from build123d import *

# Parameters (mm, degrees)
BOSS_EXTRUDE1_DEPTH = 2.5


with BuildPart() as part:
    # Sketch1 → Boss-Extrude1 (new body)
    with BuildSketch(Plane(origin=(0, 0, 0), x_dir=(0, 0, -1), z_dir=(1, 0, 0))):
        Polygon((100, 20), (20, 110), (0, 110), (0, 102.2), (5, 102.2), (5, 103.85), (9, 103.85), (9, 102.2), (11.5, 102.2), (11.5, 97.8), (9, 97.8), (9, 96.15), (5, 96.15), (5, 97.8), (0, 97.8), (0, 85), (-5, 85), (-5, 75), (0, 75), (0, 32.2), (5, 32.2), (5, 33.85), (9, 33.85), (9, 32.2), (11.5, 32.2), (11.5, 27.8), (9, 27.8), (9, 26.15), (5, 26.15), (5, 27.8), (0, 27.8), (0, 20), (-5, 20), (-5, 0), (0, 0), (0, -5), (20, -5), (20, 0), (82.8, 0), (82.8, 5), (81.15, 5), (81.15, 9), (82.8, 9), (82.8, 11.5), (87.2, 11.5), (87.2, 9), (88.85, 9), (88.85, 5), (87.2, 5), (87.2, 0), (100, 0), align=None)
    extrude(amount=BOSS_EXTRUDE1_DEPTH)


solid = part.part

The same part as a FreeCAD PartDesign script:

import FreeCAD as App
import Part
import Sketcher

doc = App.newDocument("Part")
params = doc.addObject("Spreadsheet::Sheet", "Params")
for row, (alias, value) in enumerate([
    ("sketch1_width", "10 mm"),
    ("sketch1_width2", "20 mm"),
    ("sketch1_width3", "5 mm"),
    ("sketch1_width4", "4 mm"),
    ("sketch1_width5", "7.8 mm"),
    ("pad1_length", "2.5 mm"),
], start=1):
    params.set(f"A{row}", alias)
    params.set(f"B{row}", "=" + value)
    params.setAlias(f"B{row}", alias)

body = doc.addObject("PartDesign::Body", "Body")

sketch1 = body.newObject("Sketcher::SketchObject", "Sketch")
sketch1.AttachmentSupport = (doc.getObject("YZ_Plane"), [""])
sketch1.MapMode = "FlatFace"
sketch1.addGeometry(Part.LineSegment(App.Vector(20, -100, 0), App.Vector(110, -20, 0)), False)
sketch1.addGeometry(Part.LineSegment(App.Vector(110, -20, 0), App.Vector(110, 0, 0)), False)
sketch1.addGeometry(Part.LineSegment(App.Vector(110, 0, 0), App.Vector(102.2, 0, 0)), False)
sketch1.addGeometry(Part.LineSegment(App.Vector(102.2, 0, 0), App.Vector(102.2, -5, 0)), False)
sketch1.addGeometry(Part.LineSegment(App.Vector(102.2, -5, 0), App.Vector(103.8, -5, 0)), False)
sketch1.addGeometry(Part.LineSegment(App.Vector(103.8, -5, 0), App.Vector(103.8, -9, 0)), False)
sketch1.addGeometry(Part.LineSegment(App.Vector(103.8, -9, 0), App.Vector(102.2, -9, 0)), False)
sketch1.addGeometry(Part.LineSegment(App.Vector(102.2, -9, 0), App.Vector(102.2, -11.5, 0)), False)
sketch1.addGeometry(Part.LineSegment(App.Vector(102.2, -11.5, 0), App.Vector(97.8, -11.5, 0)), False)
sketch1.addGeometry(Part.LineSegment(App.Vector(97.8, -11.5, 0), App.Vector(97.8, -9, 0)), False)
sketch1.addGeometry(Part.LineSegment(App.Vector(97.8, -9, 0), App.Vector(96.2, -9, 0)), False)
sketch1.addGeometry(Part.LineSegment(App.Vector(96.2, -9, 0), App.Vector(96.2, -5, 0)), False)
sketch1.addGeometry(Part.LineSegment(App.Vector(96.2, -5, 0), App.Vector(97.8, -5, 0)), False)
sketch1.addGeometry(Part.LineSegment(App.Vector(97.8, -5, 0), App.Vector(97.8, 0, 0)), False)
sketch1.addGeometry(Part.LineSegment(App.Vector(97.8, 0, 0), App.Vector(85, 0, 0)), False)
sketch1.addGeometry(Part.LineSegment(App.Vector(85, 0, 0), App.Vector(85, 5, 0)), False)
sketch1.addGeometry(Part.LineSegment(App.Vector(85, 5, 0), App.Vector(75, 5, 0)), False)
sketch1.addGeometry(Part.LineSegment(App.Vector(75, 5, 0), App.Vector(75, 0, 0)), False)
sketch1.addGeometry(Part.LineSegment(App.Vector(75, 0, 0), App.Vector(32.2, 0, 0)), False)
sketch1.addGeometry(Part.LineSegment(App.Vector(32.2, 0, 0), App.Vector(32.2, -5, 0)), False)
sketch1.addGeometry(Part.LineSegment(App.Vector(32.2, -5, 0), App.Vector(33.9, -5, 0)), False)
sketch1.addGeometry(Part.LineSegment(App.Vector(33.9, -5, 0), App.Vector(33.9, -9, 0)), False)
sketch1.addGeometry(Part.LineSegment(App.Vector(33.9, -9, 0), App.Vector(32.2, -9, 0)), False)
sketch1.addGeometry(Part.LineSegment(App.Vector(32.2, -9, 0), App.Vector(32.2, -11.5, 0)), False)
sketch1.addGeometry(Part.LineSegment(App.Vector(32.2, -11.5, 0), App.Vector(27.8, -11.5, 0)), False)
sketch1.addGeometry(Part.LineSegment(App.Vector(27.8, -11.5, 0), App.Vector(27.8, -9, 0)), False)
sketch1.addGeometry(Part.LineSegment(App.Vector(27.8, -9, 0), App.Vector(26.1, -9, 0)), False)
sketch1.addGeometry(Part.LineSegment(App.Vector(26.1, -9, 0), App.Vector(26.1, -5, 0)), False)
sketch1.addGeometry(Part.LineSegment(App.Vector(26.1, -5, 0), App.Vector(27.8, -5, 0)), False)
sketch1.addGeometry(Part.LineSegment(App.Vector(27.8, -5, 0), App.Vector(27.8, 0, 0)), False)
sketch1.addGeometry(Part.LineSegment(App.Vector(27.8, 0, 0), App.Vector(20, 0, 0)), False)
sketch1.addGeometry(Part.LineSegment(App.Vector(20, 0, 0), App.Vector(20, 5, 0)), False)
sketch1.addGeometry(Part.LineSegment(App.Vector(20, 5, 0), App.Vector(0, 5, 0)), False)
sketch1.addGeometry(Part.LineSegment(App.Vector(0, 5, 0), App.Vector(0, 0, 0)), False)
sketch1.addGeometry(Part.LineSegment(App.Vector(0, 0, 0), App.Vector(-5, 0, 0)), False)
sketch1.addGeometry(Part.LineSegment(App.Vector(-5, 0, 0), App.Vector(-5, -20, 0)), False)
sketch1.addGeometry(Part.LineSegment(App.Vector(-5, -20, 0), App.Vector(0, -20, 0)), False)
sketch1.addGeometry(Part.LineSegment(App.Vector(0, -20, 0), App.Vector(0, -82.8, 0)), False)
sketch1.addGeometry(Part.LineSegment(App.Vector(0, -82.8, 0), App.Vector(5, -82.8, 0)), False)
sketch1.addGeometry(Part.LineSegment(App.Vector(5, -82.8, 0), App.Vector(5, -81.2, 0)), False)
sketch1.addGeometry(Part.LineSegment(App.Vector(5, -81.2, 0), App.Vector(9, -81.2, 0)), False)
sketch1.addGeometry(Part.LineSegment(App.Vector(9, -81.2, 0), App.Vector(9, -82.8, 0)), False)
sketch1.addGeometry(Part.LineSegment(App.Vector(9, -82.8, 0), App.Vector(11.5, -82.8, 0)), False)
sketch1.addGeometry(Part.LineSegment(App.Vector(11.5, -82.8, 0), App.Vector(11.5, -87.2, 0)), False)
sketch1.addGeometry(Part.LineSegment(App.Vector(11.5, -87.2, 0), App.Vector(9, -87.2, 0)), False)
sketch1.addGeometry(Part.LineSegment(App.Vector(9, -87.2, 0), App.Vector(9, -88.8, 0)), False)
sketch1.addGeometry(Part.LineSegment(App.Vector(9, -88.8, 0), App.Vector(5, -88.8, 0)), False)
sketch1.addGeometry(Part.LineSegment(App.Vector(5, -88.8, 0), App.Vector(5, -87.2, 0)), False)
sketch1.addGeometry(Part.LineSegment(App.Vector(5, -87.2, 0), App.Vector(0, -87.2, 0)), False)
sketch1.addGeometry(Part.LineSegment(App.Vector(0, -87.2, 0), App.Vector(0, -100, 0)), False)
sketch1.addGeometry(Part.LineSegment(App.Vector(0, -100, 0), App.Vector(20, -100, 0)), False)
sketch1.addConstraint(Sketcher.Constraint("Coincident", 0, 2, 1, 1))
sketch1.addConstraint(Sketcher.Constraint("Coincident", 1, 2, 2, 1))
sketch1.addConstraint(Sketcher.Constraint("Coincident", 2, 2, 3, 1))
sketch1.addConstraint(Sketcher.Constraint("Coincident", 3, 2, 4, 1))
sketch1.addConstraint(Sketcher.Constraint("Coincident", 4, 2, 5, 1))
sketch1.addConstraint(Sketcher.Constraint("Coincident", 5, 2, 6, 1))
sketch1.addConstraint(Sketcher.Constraint("Coincident", 6, 2, 7, 1))
sketch1.addConstraint(Sketcher.Constraint("Coincident", 7, 2, 8, 1))
sketch1.addConstraint(Sketcher.Constraint("Coincident", 8, 2, 9, 1))
sketch1.addConstraint(Sketcher.Constraint("Coincident", 9, 2, 10, 1))
sketch1.addConstraint(Sketcher.Constraint("Coincident", 10, 2, 11, 1))
sketch1.addConstraint(Sketcher.Constraint("Coincident", 11, 2, 12, 1))
sketch1.addConstraint(Sketcher.Constraint("Coincident", 12, 2, 13, 1))
sketch1.addConstraint(Sketcher.Constraint("Coincident", 13, 2, 14, 1))
sketch1.addConstraint(Sketcher.Constraint("Coincident", 14, 2, 15, 1))
sketch1.addConstraint(Sketcher.Constraint("Coincident", 15, 2, 16, 1))
sketch1.addConstraint(Sketcher.Constraint("Coincident", 16, 2, 17, 1))
sketch1.addConstraint(Sketcher.Constraint("Coincident", 17, 2, 18, 1))
sketch1.addConstraint(Sketcher.Constraint("Coincident", 18, 2, 19, 1))
sketch1.addConstraint(Sketcher.Constraint("Coincident", 19, 2, 20, 1))
sketch1.addConstraint(Sketcher.Constraint("Coincident", 20, 2, 21, 1))
sketch1.addConstraint(Sketcher.Constraint("Coincident", 21, 2, 22, 1))
sketch1.addConstraint(Sketcher.Constraint("Coincident", 22, 2, 23, 1))
sketch1.addConstraint(Sketcher.Constraint("Coincident", 23, 2, 24, 1))
sketch1.addConstraint(Sketcher.Constraint("Coincident", 24, 2, 25, 1))
sketch1.addConstraint(Sketcher.Constraint("Coincident", 25, 2, 26, 1))
sketch1.addConstraint(Sketcher.Constraint("Coincident", 26, 2, 27, 1))
sketch1.addConstraint(Sketcher.Constraint("Coincident", 27, 2, 28, 1))
sketch1.addConstraint(Sketcher.Constraint("Coincident", 28, 2, 29, 1))
sketch1.addConstraint(Sketcher.Constraint("Coincident", 29, 2, 30, 1))
sketch1.addConstraint(Sketcher.Constraint("Coincident", 30, 2, 31, 1))
sketch1.addConstraint(Sketcher.Constraint("Coincident", 31, 2, 32, 1))
sketch1.addConstraint(Sketcher.Constraint("Coincident", 32, 2, 33, 1))
sketch1.addConstraint(Sketcher.Constraint("Coincident", 33, 2, 34, 1))
sketch1.addConstraint(Sketcher.Constraint("Coincident", 34, 2, 35, 1))
sketch1.addConstraint(Sketcher.Constraint("Coincident", 35, 2, 36, 1))
sketch1.addConstraint(Sketcher.Constraint("Coincident", 36, 2, 37, 1))
sketch1.addConstraint(Sketcher.Constraint("Coincident", 37, 2, 38, 1))
sketch1.addConstraint(Sketcher.Constraint("Coincident", 38, 2, 39, 1))
sketch1.addConstraint(Sketcher.Constraint("Coincident", 39, 2, 40, 1))
sketch1.addConstraint(Sketcher.Constraint("Coincident", 40, 2, 41, 1))
sketch1.addConstraint(Sketcher.Constraint("Coincident", 41, 2, 42, 1))
sketch1.addConstraint(Sketcher.Constraint("Coincident", 42, 2, 43, 1))
sketch1.addConstraint(Sketcher.Constraint("Coincident", 43, 2, 44, 1))
sketch1.addConstraint(Sketcher.Constraint("Coincident", 44, 2, 45, 1))
sketch1.addConstraint(Sketcher.Constraint("Coincident", 45, 2, 46, 1))
sketch1.addConstraint(Sketcher.Constraint("Coincident", 46, 2, 47, 1))
sketch1.addConstraint(Sketcher.Constraint("Coincident", 47, 2, 48, 1))
sketch1.addConstraint(Sketcher.Constraint("Coincident", 48, 2, 49, 1))
sketch1.addConstraint(Sketcher.Constraint("Coincident", 49, 2, 50, 1))
sketch1.addConstraint(Sketcher.Constraint("Coincident", 50, 2, 0, 1))
sketch1.addConstraint(Sketcher.Constraint("Vertical", 1))
sketch1.addConstraint(Sketcher.Constraint("Horizontal", 2))
sketch1.addConstraint(Sketcher.Constraint("Vertical", 3))
sketch1.addConstraint(Sketcher.Constraint("Horizontal", 4))
sketch1.addConstraint(Sketcher.Constraint("Vertical", 5))
sketch1.addConstraint(Sketcher.Constraint("Horizontal", 6))
sketch1.addConstraint(Sketcher.Constraint("Vertical", 7))
sketch1.addConstraint(Sketcher.Constraint("Horizontal", 8))
sketch1.addConstraint(Sketcher.Constraint("Vertical", 9))
sketch1.addConstraint(Sketcher.Constraint("Horizontal", 10))
sketch1.addConstraint(Sketcher.Constraint("Vertical", 11))
sketch1.addConstraint(Sketcher.Constraint("Horizontal", 12))
sketch1.addConstraint(Sketcher.Constraint("Vertical", 13))
sketch1.addConstraint(Sketcher.Constraint("Horizontal", 14))
sketch1.addConstraint(Sketcher.Constraint("Vertical", 15))
sketch1.addConstraint(Sketcher.Constraint("Horizontal", 16))
sketch1.addConstraint(Sketcher.Constraint("Vertical", 17))
sketch1.addConstraint(Sketcher.Constraint("Horizontal", 18))
sketch1.addConstraint(Sketcher.Constraint("Vertical", 19))
sketch1.addConstraint(Sketcher.Constraint("Horizontal", 20))
sketch1.addConstraint(Sketcher.Constraint("Vertical", 21))
sketch1.addConstraint(Sketcher.Constraint("Horizontal", 22))
sketch1.addConstraint(Sketcher.Constraint("Vertical", 23))
sketch1.addConstraint(Sketcher.Constraint("Horizontal", 24))
sketch1.addConstraint(Sketcher.Constraint("Vertical", 25))
sketch1.addConstraint(Sketcher.Constraint("Horizontal", 26))
sketch1.addConstraint(Sketcher.Constraint("Vertical", 27))
sketch1.addConstraint(Sketcher.Constraint("Horizontal", 28))
sketch1.addConstraint(Sketcher.Constraint("Vertical", 29))
sketch1.addConstraint(Sketcher.Constraint("Horizontal", 30))
sketch1.addConstraint(Sketcher.Constraint("Vertical", 31))
sketch1.addConstraint(Sketcher.Constraint("Horizontal", 32))
sketch1.addConstraint(Sketcher.Constraint("Vertical", 33))
sketch1.addConstraint(Sketcher.Constraint("Horizontal", 34))
sketch1.addConstraint(Sketcher.Constraint("Vertical", 35))
sketch1.addConstraint(Sketcher.Constraint("Horizontal", 36))
sketch1.addConstraint(Sketcher.Constraint("Vertical", 37))
sketch1.addConstraint(Sketcher.Constraint("Horizontal", 38))
sketch1.addConstraint(Sketcher.Constraint("Vertical", 39))
sketch1.addConstraint(Sketcher.Constraint("Horizontal", 40))
sketch1.addConstraint(Sketcher.Constraint("Vertical", 41))
sketch1.addConstraint(Sketcher.Constraint("Horizontal", 42))
sketch1.addConstraint(Sketcher.Constraint("Vertical", 43))
sketch1.addConstraint(Sketcher.Constraint("Horizontal", 44))
sketch1.addConstraint(Sketcher.Constraint("Vertical", 45))
sketch1.addConstraint(Sketcher.Constraint("Horizontal", 46))
sketch1.addConstraint(Sketcher.Constraint("Vertical", 47))
sketch1.addConstraint(Sketcher.Constraint("Horizontal", 48))
sketch1.addConstraint(Sketcher.Constraint("Vertical", 49))
sketch1.addConstraint(Sketcher.Constraint("Horizontal", 50))
sketch1.addConstraint(Sketcher.Constraint("Coincident", 33, 2, -1, 1))
sketch1.addConstraint(Sketcher.Constraint("PointOnObject", 1, 2, -1))
sketch1.addConstraint(Sketcher.Constraint("PointOnObject", 13, 2, -1))
sketch1.addConstraint(Sketcher.Constraint("PointOnObject", 17, 2, -1))
sketch1.addConstraint(Sketcher.Constraint("PointOnObject", 29, 2, -1))
sketch1.addConstraint(Sketcher.Constraint("PointOnObject", 36, 2, -2))
sketch1.addConstraint(Sketcher.Constraint("PointOnObject", 48, 2, -2))
sketch1.addConstraint(Sketcher.Constraint("Horizontal", 6, 2, 9, 2))
sketch1.addConstraint(Sketcher.Constraint("Horizontal", 4, 2, 11, 2))
sketch1.addConstraint(Sketcher.Constraint("Horizontal", 12, 2, 19, 2))
sketch1.addConstraint(Sketcher.Constraint("Horizontal", 10, 2, 21, 2))
sketch1.addConstraint(Sketcher.Constraint("Horizontal", 8, 2, 23, 2))
sketch1.addConstraint(Sketcher.Constraint("Horizontal", 22, 2, 25, 2))
sketch1.addConstraint(Sketcher.Constraint("Horizontal", 20, 2, 27, 2))
sketch1.addConstraint(Sketcher.Constraint("Horizontal", 16, 2, 31, 2))
sketch1.addConstraint(Sketcher.Constraint("Horizontal", 0, 2, 35, 2))
sketch1.addConstraint(Sketcher.Constraint("Horizontal", 38, 2, 41, 2))
sketch1.addConstraint(Sketcher.Constraint("Horizontal", 44, 2, 47, 2))
sketch1.addConstraint(Sketcher.Constraint("Vertical", 3, 2, 6, 2))
sketch1.addConstraint(Sketcher.Constraint("Vertical", 9, 2, 12, 2))
sketch1.addConstraint(Sketcher.Constraint("Vertical", 19, 2, 22, 2))
sketch1.addConstraint(Sketcher.Constraint("Vertical", 25, 2, 28, 2))
sketch1.addConstraint(Sketcher.Constraint("Vertical", 41, 2, 44, 2))
sketch1.addConstraint(Sketcher.Constraint("Vertical", 39, 2, 46, 2))
sketch1.addConstraint(Sketcher.Constraint("Vertical", 31, 2, 50, 2))
sketch1.addConstraint(Sketcher.Constraint("Equal", 6, 10))
sketch1.addConstraint(Sketcher.Constraint("Equal", 12, 20))
sketch1.addConstraint(Sketcher.Constraint("Equal", 8, 24))
sketch1.addConstraint(Sketcher.Constraint("Equal", 22, 26))
sketch1.addConstraint(Sketcher.Constraint("Equal", 2, 30))
sketch1.addConstraint(Sketcher.Constraint("Equal", 36, 38))
sketch1.addConstraint(Sketcher.Constraint("Equal", 50, 1))
sketch1.addConstraint(Sketcher.Constraint("Equal", 48, 3))
sketch1.addConstraint(Sketcher.Constraint("Equal", 46, 5))
sketch1.addConstraint(Sketcher.Constraint("Equal", 44, 7))
sketch1.addConstraint(Sketcher.Constraint("Equal", 13, 15))
sketch1.addConstraint(Sketcher.Constraint("Equal", 28, 39))
sketch1.addConstraint(Sketcher.Constraint("Equal", 24, 43))
sketch1.addConstraint(Sketcher.Constraint("Equal", 41, 45))
sketch1.addConstraint(Sketcher.Constraint("Equal", 14, 49))
sketch1.addConstraint(Sketcher.Constraint("DistanceX", 16, 2, 16, 1, 10.0))
sketch1.addConstraint(Sketcher.Constraint("DistanceX", 32, 2, 32, 1, 20.0))
sketch1.addConstraint(Sketcher.Constraint("DistanceX", 34, 2, 34, 1, 5.0))
sketch1.addConstraint(Sketcher.Constraint("DistanceX", 40, 1, 40, 2, 4.0))
sketch1.addConstraint(Sketcher.Constraint("DistanceX", 2, 2, 2, 1, 7.8))
sketch1.addConstraint(Sketcher.Constraint("DistanceX", 8, 2, 8, 1, 4.4))
sketch1.addConstraint(Sketcher.Constraint("DistanceX", 14, 2, 14, 1, 12.8))
sketch1.addConstraint(Sketcher.Constraint("DistanceX", 18, 2, 18, 1, 42.8))
sketch1.addConstraint(Sketcher.Constraint("DistanceX", 42, 1, 42, 2, 2.5))
sketch1.addConstraint(Sketcher.Constraint("DistanceY", 37, 2, 37, 1, 62.8))
sketch1.addConstraint(Sketcher.Constraint("DistanceX", 4, 1, 4, 2, 1.65))
sketch1.setExpression("Constraints[141]", "Params.sketch1_width")
sketch1.setExpression("Constraints[142]", "Params.sketch1_width2")
sketch1.setExpression("Constraints[143]", "Params.sketch1_width3")
sketch1.setExpression("Constraints[144]", "Params.sketch1_width4")
sketch1.setExpression("Constraints[145]", "Params.sketch1_width5")
pad1 = body.newObject("PartDesign::Pad", "Pad")
pad1.Profile = sketch1
pad1.setExpression("Length", "Params.pad1_length")

doc.recompute()
